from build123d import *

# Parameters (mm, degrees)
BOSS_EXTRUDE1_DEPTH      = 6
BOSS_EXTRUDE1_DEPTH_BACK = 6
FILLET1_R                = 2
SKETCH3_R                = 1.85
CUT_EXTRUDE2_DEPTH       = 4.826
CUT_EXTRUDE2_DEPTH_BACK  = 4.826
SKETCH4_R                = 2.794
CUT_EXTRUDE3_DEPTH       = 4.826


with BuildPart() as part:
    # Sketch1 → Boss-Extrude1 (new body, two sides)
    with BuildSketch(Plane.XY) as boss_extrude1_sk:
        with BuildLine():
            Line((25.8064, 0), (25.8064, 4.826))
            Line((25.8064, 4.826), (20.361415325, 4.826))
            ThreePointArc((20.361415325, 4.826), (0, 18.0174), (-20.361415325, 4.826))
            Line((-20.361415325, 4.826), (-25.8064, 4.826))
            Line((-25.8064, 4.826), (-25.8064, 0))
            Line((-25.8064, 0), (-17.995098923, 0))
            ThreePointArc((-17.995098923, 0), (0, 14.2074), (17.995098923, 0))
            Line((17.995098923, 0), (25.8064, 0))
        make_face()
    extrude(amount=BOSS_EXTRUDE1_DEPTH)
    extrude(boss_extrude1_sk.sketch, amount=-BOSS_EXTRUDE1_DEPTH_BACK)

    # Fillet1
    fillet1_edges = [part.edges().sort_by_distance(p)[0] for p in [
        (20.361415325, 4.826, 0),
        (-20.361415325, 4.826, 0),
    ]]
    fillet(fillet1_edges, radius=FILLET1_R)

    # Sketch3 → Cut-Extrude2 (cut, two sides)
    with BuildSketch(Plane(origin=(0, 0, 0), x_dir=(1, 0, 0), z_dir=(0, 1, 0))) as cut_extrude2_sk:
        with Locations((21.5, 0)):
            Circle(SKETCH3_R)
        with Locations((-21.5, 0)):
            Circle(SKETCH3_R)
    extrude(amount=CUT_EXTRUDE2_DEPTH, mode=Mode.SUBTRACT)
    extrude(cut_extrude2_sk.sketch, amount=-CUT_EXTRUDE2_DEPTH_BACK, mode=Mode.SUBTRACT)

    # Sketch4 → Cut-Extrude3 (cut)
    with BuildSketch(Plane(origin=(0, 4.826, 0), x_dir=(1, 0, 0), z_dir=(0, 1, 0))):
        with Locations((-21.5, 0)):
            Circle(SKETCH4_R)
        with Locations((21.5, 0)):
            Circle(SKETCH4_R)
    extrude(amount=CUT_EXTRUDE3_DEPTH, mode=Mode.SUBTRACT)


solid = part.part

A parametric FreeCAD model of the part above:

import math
import FreeCAD as App
import Part
import Sketcher

V = App.Vector
Q = App.Units.Quantity


def edges_at(feature, points):
    """Names of the edges that pass closest to the given points."""
    edges = feature.Shape.Edges
    near = lambda p: min(range(len(edges)), key=lambda i: edges[i].distToShape(Part.Vertex(*p))[0])
    return sorted({f"Edge{near(p) + 1}" for p in points})

doc = App.newDocument("Part")
body = doc.addObject("PartDesign::Body", "Body")

# Sketch on XY plane
sketch1 = doc.addObject("Sketcher::SketchObject", "Sketch")
body.addObject(sketch1)
sketch1.AttachmentSupport = (doc.XY_Plane, [""])
sketch1.MapMode = "FlatFace"
sketch1.addGeometry(Part.LineSegment(V(25.8064, 0, 0), V(25.8064, 4.826, 0)), False)
sketch1.addGeometry(Part.LineSegment(V(25.8064, 4.826, 0), V(20.361415, 4.826, 0)), False)
sketch1.addGeometry(Part.ArcOfCircle(Part.Circle(V(0, -4.2926, 0), V(0, 0, 1), 22.31), math.radians(24.124612), math.radians(155.875388)), False)
sketch1.addGeometry(Part.LineSegment(V(-20.361415, 4.826, 0), V(-25.8064, 4.826, 0)), False)
sketch1.addGeometry(Part.LineSegment(V(-25.8064, 4.826, 0), V(-25.8064, 0, 0)), False)
sketch1.addGeometry(Part.LineSegment(V(-25.8064, 0, 0), V(-17.995099, 0, 0)), False)
sketch1.addGeometry(Part.ArcOfCircle(Part.Circle(V(0, -4.2926, 0), V(0, 0, 1), 18.5), math.radians(13.416759), math.radians(166.583241)), False)
sketch1.addGeometry(Part.LineSegment(V(17.995099, 0, 0), V(25.8064, 0, 0)), False)
sketch1.addConstraint(Sketcher.Constraint("Coincident", 0, 2, 1, 1))
sketch1.addConstraint(Sketcher.Constraint("Coincident", 1, 2, 2, 1))
sketch1.addConstraint(Sketcher.Constraint("Coincident", 2, 2, 3, 1))
sketch1.addConstraint(Sketcher.Constraint("Coincident", 3, 2, 4, 1))
sketch1.addConstraint(Sketcher.Constraint("Coincident", 4, 2, 5, 1))
sketch1.addConstraint(Sketcher.Constraint("Coincident", 5, 2, 6, 2))
sketch1.addConstraint(Sketcher.Constraint("Coincident", 6, 1, 7, 1))
sketch1.addConstraint(Sketcher.Constraint("Coincident", 7, 2, 0, 1))
sketch1.addConstraint(Sketcher.Constraint("Vertical", 0))
sketch1.addConstraint(Sketcher.Constraint("Horizontal", 1))
sketch1.addConstraint(Sketcher.Constraint("Horizontal", 3))
sketch1.addConstraint(Sketcher.Constraint("Vertical", 4))
sketch1.addConstraint(Sketcher.Constraint("Horizontal", 5))
sketch1.addConstraint(Sketcher.Constraint("Horizontal", 7))
sketch1.addConstraint(Sketcher.Constraint("Coincident", 6, 3, 2, 3))
sketch1.addConstraint(Sketcher.Constraint("Symmetric", 5, 2, 6, 1, -1, 1))
sketch1.addConstraint(Sketcher.Constraint("Symmetric", 1, 2, 2, 2, -2))
sketch1.addConstraint(Sketcher.Constraint("Equal", 1, 3))
sketch1.addConstraint(Sketcher.Constraint("Radius", 6, Q("18.5 mm")))
sketch1.addConstraint(Sketcher.Constraint("Radius", 2, Q("22.31 mm")))
sketch1.addConstraint(Sketcher.Constraint("DistanceY", 0, 1, 0, 2, Q("4.826 mm")))
sketch1.addConstraint(Sketcher.Constraint("DistanceX", 5, 1, 5, 2, Q("7.811301 mm")))
sketch1.addConstraint(Sketcher.Constraint("DistanceY", 2, 3, -1, 1, Q("4.2926 mm")))
pad1 = doc.addObject("PartDesign::Pad", "Pad")
body.addObject(pad1)
pad1.Profile = sketch1
pad1.Type = "TwoLengths"
pad1.Length = 6
pad1.Length2 = 6
doc.recompute()

fillet = doc.addObject("PartDesign::Fillet", "Fillet")
body.addObject(fillet)
fillet.Base = (pad1, edges_at(pad1, [(20.361, 4.826, 0), (-20.361, 4.826, 0)]))
fillet.Radius = 2

# Sketch on XZ plane
sketch2 = doc.addObject("Sketcher::SketchObject", "Sketch001")
body.addObject(sketch2)
sketch2.AttachmentSupport = (doc.XZ_Plane, [""])
sketch2.MapMode = "FlatFace"
sketch2.addGeometry(Part.Circle(V(21.5, 0, 0), V(0, 0, 1), 1.85), False)
sketch2.addGeometry(Part.Circle(V(-21.5, 0, 0), V(0, 0, 1), 1.85), False)
sketch2.addConstraint(Sketcher.Constraint("Equal", 0, 1))
sketch2.addConstraint(Sketcher.Constraint("Symmetric", 0, 3, 1, 3, -1, 1))
sketch2.addConstraint(Sketcher.Constraint("PointOnObject", 0, 3, -1))
sketch2.addConstraint(Sketcher.Constraint("Diameter", 0, Q("3.7 mm")))
sketch2.addConstraint(Sketcher.Constraint("DistanceX", 1, 3, 0, 3, Q("43 mm")))
pocket1 = doc.addObject("PartDesign::Pocket", "Pocket")
body.addObject(pocket1)
pocket1.Profile = sketch2
pocket1.Type = "TwoLengths"
pocket1.Length = 4.826
pocket1.Length2 = 4.826

# Sketch on XZ plane
sketch3 = doc.addObject("Sketcher::SketchObject", "Sketch002")
body.addObject(sketch3)
sketch3.AttachmentSupport = (doc.XZ_Plane, [""])
sketch3.MapMode = "FlatFace"
sketch3.AttachmentOffset = App.Placement(V(0, 0, -4.826), App.Rotation())
sketch3.addGeometry(Part.Circle(V(-21.5, 0, 0), V(0, 0, 1), 2.794), False)
sketch3.addGeometry(Part.Circle(V(21.5, 0, 0), V(0, 0, 1), 2.794), False)
sketch3.addConstraint(Sketcher.Constraint("Equal", 0, 1))
sketch3.addConstraint(Sketcher.Constraint("Symmetric", 0, 3, 1, 3, -1, 1))
sketch3.addConstraint(Sketcher.Constraint("PointOnObject", 0, 3, -1))
sketch3.addConstraint(Sketcher.Constraint("Diameter", 0, Q("5.588 mm")))
sketch3.addConstraint(Sketcher.Constraint("DistanceX", 0, 3, 1, 3, Q("43 mm")))
pocket2 = doc.addObject("PartDesign::Pocket", "Pocket001")
body.addObject(pocket2)
pocket2.Profile = sketch3
pocket2.Length = 4.826

doc.recompute()
